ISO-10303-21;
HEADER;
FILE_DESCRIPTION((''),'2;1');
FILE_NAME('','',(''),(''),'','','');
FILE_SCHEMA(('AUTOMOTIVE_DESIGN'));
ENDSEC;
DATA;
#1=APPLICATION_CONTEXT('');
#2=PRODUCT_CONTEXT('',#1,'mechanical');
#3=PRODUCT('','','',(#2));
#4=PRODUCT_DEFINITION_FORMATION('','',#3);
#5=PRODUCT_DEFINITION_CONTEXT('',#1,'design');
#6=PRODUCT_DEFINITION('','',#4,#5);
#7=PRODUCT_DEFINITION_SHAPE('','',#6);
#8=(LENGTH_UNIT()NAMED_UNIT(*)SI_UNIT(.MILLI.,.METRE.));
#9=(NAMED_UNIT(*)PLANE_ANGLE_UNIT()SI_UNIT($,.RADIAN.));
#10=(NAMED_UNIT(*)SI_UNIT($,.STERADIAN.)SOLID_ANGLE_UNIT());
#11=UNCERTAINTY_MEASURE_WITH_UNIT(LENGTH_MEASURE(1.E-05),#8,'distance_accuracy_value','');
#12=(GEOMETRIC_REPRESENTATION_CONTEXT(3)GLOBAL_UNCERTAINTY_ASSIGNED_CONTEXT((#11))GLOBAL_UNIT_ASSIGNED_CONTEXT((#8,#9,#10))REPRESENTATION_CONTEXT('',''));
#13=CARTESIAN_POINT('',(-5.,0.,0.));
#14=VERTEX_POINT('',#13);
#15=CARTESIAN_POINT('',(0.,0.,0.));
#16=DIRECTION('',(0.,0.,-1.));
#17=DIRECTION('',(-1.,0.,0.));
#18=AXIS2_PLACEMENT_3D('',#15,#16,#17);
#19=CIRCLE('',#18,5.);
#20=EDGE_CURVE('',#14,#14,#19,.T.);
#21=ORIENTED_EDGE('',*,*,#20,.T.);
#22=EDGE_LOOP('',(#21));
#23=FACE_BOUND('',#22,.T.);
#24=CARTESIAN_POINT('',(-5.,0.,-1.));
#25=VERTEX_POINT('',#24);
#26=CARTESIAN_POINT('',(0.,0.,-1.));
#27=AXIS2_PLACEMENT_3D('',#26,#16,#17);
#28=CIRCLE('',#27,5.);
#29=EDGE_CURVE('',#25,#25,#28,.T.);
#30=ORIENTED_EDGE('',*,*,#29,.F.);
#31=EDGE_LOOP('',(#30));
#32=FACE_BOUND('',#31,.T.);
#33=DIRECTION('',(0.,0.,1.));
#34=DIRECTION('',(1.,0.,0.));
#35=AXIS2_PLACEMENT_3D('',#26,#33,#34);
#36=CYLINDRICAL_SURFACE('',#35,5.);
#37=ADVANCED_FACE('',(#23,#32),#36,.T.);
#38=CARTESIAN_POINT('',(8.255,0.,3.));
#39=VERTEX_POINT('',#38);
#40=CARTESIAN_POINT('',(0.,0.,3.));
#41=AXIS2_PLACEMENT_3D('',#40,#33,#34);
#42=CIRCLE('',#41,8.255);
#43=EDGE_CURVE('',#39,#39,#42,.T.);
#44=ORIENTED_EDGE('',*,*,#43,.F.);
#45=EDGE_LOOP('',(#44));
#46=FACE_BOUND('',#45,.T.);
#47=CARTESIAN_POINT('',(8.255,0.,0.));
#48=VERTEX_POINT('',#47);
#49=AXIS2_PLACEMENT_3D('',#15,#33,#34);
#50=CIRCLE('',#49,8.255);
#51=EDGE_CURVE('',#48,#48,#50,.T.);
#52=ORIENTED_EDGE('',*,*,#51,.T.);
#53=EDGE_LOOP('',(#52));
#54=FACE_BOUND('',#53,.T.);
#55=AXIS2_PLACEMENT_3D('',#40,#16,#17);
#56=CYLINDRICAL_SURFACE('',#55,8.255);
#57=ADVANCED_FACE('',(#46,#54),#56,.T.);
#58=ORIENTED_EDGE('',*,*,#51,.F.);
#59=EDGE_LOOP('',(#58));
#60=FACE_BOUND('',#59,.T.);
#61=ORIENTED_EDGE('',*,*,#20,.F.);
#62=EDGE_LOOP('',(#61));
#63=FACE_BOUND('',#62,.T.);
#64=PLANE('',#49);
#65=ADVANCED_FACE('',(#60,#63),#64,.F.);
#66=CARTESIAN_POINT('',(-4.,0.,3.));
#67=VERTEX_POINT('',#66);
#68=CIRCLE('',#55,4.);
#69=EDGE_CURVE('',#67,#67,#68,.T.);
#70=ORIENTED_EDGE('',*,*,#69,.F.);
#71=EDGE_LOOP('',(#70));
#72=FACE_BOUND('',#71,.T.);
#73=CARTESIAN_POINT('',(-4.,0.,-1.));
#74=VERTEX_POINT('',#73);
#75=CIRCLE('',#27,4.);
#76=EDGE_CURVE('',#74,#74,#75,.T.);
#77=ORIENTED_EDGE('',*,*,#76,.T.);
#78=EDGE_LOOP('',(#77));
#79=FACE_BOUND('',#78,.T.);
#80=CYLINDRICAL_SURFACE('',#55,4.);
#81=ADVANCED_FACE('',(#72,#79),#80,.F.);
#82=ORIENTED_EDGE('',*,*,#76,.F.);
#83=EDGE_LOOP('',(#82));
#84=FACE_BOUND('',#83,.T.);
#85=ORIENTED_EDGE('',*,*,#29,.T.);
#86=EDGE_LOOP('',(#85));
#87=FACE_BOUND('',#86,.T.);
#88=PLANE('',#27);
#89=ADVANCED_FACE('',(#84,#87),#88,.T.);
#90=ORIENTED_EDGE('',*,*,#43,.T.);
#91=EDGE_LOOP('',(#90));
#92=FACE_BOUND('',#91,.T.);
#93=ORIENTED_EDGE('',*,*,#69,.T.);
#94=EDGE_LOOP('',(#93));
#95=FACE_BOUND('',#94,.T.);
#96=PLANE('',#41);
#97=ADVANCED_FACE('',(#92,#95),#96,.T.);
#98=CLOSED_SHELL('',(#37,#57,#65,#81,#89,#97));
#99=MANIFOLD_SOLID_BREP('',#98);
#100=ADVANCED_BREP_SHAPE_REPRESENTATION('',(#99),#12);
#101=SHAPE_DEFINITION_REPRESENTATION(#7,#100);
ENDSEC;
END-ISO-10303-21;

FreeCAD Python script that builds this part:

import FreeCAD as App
import Part
import Sketcher

doc = App.newDocument("Part")
body = doc.addObject("PartDesign::Body", "Body")

# Sketch on XY plane
sketch1 = doc.addObject("Sketcher::SketchObject", "Sketch")
body.addObject(sketch1)
sketch1.AttachmentSupport = (doc.XY_Plane, [""])
sketch1.MapMode = "FlatFace"
sketch1.addGeometry(Part.Circle(App.Vector(0, 0, 0), App.Vector(0, 0, 1), 8), False)
sketch1.addConstraint([
    Sketcher.Constraint("Coincident", 0, 3, -1, 1),
    Sketcher.Constraint("Diameter", 0, 16.51),
])
pad1 = doc.addObject("PartDesign::Pad", "Pad")
body.addObject(pad1)
pad1.Profile = sketch1
pad1.Length = 3

# Sketch on XY plane
sketch2 = doc.addObject("Sketcher::SketchObject", "Sketch001")
body.addObject(sketch2)
sketch2.AttachmentSupport = (doc.XY_Plane, [""])
sketch2.MapMode = "FlatFace"
sketch2.addGeometry(Part.Circle(App.Vector(0, 0, 0), App.Vector(0, 0, 1), 5), False)
sketch2.addConstraint([
    Sketcher.Constraint("Coincident", 0, 3, -1, 1),
    Sketcher.Constraint("Diameter", 0, 10.0),
])
pad2 = doc.addObject("PartDesign::Pad", "Pad001")
body.addObject(pad2)
pad2.Profile = sketch2
pad2.Length = 1
pad2.Reversed = True

# Sketch on XY plane
sketch3 = doc.addObject("Sketcher::SketchObject", "Sketch002")
body.addObject(sketch3)
sketch3.AttachmentSupport = (doc.XY_Plane, [""])
sketch3.MapMode = "FlatFace"
sketch3.AttachmentOffset = App.Placement(App.Vector(0, 0, -1), App.Rotation())
sketch3.addGeometry(Part.Circle(App.Vector(0, 0, 0), App.Vector(0, 0, 1), 4), False)
sketch3.addConstraint([
    Sketcher.Constraint("Coincident", 0, 3, -1, 1),
    Sketcher.Constraint("Diameter", 0, 8.0),
])
pocket1 = doc.addObject("PartDesign::Pocket", "Pocket")
body.addObject(pocket1)
pocket1.Profile = sketch3
pocket1.Type = "ThroughAll"
pocket1.Reversed = True

doc.recompute()
